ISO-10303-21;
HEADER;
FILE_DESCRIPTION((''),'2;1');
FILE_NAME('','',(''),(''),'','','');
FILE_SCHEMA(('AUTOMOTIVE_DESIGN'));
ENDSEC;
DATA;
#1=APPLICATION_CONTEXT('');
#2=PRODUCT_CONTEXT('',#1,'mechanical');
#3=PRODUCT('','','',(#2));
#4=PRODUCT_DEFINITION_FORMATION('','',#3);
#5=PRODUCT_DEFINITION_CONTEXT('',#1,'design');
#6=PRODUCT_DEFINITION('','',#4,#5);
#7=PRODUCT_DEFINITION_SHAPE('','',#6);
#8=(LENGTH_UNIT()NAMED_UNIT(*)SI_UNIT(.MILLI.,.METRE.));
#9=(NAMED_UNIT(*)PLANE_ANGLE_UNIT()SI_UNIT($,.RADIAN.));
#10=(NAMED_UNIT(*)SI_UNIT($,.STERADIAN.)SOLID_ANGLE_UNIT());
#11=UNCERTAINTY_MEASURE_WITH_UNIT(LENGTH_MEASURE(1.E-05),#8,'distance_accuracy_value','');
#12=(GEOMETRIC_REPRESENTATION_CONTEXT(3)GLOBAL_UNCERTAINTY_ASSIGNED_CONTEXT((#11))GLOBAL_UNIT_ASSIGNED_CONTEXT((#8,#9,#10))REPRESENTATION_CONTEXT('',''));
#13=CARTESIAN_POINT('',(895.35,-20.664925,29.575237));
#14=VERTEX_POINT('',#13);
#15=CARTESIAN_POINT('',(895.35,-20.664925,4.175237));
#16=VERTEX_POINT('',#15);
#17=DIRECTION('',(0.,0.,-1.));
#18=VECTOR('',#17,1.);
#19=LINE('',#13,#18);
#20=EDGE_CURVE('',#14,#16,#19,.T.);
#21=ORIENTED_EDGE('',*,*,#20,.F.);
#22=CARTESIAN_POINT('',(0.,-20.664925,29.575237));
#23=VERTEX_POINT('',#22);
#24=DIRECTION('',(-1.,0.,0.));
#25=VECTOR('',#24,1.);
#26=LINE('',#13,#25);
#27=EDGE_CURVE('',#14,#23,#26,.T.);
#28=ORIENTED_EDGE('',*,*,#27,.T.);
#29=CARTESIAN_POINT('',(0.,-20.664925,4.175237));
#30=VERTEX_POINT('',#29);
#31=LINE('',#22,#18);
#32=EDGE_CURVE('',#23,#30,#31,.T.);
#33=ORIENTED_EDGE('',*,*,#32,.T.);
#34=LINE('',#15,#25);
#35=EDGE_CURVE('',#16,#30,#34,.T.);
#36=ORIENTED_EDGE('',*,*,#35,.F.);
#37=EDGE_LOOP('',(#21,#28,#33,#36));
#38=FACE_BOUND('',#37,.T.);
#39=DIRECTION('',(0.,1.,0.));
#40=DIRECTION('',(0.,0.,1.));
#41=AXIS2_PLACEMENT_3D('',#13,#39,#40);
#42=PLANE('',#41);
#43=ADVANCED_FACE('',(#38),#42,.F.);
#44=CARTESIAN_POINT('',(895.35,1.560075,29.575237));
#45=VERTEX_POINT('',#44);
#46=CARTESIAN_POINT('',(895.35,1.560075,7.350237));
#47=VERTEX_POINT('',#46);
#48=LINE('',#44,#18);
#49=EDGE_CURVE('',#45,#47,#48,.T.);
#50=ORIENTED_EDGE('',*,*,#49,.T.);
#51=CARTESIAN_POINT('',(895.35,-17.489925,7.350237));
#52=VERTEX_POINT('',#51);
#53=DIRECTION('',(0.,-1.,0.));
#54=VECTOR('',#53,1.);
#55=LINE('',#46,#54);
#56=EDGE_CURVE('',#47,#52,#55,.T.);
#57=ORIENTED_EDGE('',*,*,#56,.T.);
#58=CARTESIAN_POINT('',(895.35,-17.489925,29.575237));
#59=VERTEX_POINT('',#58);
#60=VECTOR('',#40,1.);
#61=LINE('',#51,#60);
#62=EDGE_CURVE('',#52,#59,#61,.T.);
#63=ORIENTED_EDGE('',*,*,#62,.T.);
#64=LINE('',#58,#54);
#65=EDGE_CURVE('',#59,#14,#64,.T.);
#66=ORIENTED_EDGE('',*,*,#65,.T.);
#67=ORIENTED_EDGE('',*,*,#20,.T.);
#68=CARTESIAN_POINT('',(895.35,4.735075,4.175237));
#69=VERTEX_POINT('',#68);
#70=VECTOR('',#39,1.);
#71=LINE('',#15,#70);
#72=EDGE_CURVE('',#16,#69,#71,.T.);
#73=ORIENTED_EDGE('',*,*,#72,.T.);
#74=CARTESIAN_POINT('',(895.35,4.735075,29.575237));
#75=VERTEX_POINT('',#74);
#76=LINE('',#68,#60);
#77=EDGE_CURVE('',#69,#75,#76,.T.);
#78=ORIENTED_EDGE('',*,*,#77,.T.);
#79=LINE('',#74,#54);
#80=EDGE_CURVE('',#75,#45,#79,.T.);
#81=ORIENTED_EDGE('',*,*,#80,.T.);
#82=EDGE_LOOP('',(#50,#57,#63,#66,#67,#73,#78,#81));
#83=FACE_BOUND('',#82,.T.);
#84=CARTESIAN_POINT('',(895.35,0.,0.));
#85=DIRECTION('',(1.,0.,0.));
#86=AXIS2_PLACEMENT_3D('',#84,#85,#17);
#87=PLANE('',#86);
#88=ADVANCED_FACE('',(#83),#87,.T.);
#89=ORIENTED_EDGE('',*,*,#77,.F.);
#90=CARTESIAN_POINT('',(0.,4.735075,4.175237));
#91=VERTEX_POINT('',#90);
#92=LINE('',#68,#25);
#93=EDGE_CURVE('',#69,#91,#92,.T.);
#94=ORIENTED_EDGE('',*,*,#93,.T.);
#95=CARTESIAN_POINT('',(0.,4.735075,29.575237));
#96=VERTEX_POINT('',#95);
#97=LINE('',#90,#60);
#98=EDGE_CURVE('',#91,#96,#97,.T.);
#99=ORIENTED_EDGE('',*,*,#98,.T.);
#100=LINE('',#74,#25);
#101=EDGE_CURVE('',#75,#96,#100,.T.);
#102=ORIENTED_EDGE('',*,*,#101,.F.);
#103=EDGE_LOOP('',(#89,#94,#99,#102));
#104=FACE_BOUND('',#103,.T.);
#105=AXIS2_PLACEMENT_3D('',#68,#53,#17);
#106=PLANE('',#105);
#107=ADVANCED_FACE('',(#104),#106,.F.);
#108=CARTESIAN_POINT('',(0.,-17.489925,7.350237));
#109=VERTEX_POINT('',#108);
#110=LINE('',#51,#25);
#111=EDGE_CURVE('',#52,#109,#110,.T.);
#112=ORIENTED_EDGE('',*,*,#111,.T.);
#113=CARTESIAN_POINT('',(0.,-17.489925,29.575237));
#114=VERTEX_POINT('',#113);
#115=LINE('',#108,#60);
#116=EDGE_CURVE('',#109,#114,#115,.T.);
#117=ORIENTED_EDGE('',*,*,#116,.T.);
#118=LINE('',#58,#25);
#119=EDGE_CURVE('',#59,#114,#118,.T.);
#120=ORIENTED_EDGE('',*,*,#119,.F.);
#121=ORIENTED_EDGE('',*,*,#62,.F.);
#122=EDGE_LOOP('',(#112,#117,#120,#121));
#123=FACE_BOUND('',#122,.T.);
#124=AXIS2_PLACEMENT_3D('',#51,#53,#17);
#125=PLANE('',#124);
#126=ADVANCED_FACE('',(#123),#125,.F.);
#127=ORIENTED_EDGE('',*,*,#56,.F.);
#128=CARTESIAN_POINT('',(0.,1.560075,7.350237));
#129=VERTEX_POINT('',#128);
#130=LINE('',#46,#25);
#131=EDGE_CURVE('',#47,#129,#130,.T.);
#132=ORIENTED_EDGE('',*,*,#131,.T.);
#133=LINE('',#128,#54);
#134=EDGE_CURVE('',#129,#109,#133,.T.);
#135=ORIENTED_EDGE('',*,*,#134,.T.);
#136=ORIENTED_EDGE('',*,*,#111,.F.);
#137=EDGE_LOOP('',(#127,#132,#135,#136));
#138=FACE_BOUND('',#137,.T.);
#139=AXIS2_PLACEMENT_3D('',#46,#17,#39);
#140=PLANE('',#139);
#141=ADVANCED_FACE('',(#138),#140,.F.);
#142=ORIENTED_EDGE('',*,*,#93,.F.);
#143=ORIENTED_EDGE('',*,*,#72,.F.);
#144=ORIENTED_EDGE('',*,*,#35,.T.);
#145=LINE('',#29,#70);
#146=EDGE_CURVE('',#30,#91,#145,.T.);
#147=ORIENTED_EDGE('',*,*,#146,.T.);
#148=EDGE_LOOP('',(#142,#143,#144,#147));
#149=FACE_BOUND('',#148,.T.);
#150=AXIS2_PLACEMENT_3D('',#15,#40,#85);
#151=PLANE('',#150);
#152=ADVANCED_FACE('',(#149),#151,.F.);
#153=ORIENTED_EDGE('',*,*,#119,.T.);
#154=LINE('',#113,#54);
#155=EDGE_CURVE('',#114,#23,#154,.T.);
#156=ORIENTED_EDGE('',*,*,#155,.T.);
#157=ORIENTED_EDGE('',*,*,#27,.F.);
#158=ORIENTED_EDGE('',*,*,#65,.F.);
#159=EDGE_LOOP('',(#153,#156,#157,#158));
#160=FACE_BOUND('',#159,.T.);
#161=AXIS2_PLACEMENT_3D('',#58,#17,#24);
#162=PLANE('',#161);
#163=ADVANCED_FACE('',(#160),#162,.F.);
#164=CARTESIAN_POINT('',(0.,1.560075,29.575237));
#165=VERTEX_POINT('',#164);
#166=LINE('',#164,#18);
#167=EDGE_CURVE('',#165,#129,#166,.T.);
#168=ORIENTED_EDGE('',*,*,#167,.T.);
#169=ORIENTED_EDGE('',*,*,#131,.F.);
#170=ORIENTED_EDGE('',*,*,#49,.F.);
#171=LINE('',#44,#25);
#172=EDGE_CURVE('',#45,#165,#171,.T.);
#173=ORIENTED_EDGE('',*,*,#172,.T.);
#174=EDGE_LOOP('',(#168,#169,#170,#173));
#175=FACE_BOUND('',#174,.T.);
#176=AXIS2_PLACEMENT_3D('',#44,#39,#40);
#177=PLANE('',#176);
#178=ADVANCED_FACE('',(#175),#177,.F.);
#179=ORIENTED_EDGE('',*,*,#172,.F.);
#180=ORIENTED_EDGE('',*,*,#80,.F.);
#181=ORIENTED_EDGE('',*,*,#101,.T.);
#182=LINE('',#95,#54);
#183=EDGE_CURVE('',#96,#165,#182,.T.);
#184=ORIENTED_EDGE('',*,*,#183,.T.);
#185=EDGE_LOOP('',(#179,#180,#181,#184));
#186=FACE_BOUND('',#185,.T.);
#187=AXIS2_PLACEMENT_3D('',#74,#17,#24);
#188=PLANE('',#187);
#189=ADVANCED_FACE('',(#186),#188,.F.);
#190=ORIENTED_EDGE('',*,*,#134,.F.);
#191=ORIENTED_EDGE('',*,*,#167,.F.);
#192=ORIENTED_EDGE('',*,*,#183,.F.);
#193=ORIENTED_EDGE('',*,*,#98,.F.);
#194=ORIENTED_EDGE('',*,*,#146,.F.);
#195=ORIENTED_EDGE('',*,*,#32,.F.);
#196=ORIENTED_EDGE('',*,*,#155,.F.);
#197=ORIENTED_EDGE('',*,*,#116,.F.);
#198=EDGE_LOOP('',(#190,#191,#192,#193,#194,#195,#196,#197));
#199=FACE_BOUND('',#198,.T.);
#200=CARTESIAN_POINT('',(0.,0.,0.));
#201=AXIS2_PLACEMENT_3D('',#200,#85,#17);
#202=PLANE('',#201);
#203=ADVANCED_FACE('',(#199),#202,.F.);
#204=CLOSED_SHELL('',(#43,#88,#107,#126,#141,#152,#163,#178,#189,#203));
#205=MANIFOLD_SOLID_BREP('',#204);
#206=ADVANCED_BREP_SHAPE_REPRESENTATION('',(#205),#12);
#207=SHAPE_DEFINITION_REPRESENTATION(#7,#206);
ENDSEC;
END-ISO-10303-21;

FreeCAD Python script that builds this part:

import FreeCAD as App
import Part
import Sketcher

V = App.Vector
Q = App.Units.Quantity


def add_polygon(sketch, points):
    """Adds a closed chain of lines whose ends are joined by coincident constraints."""
    first, n = sketch.GeometryCount, len(points)
    for a, b in zip(points, points[1:] + points[:1]):
        sketch.addGeometry(Part.LineSegment(App.Vector(*a, 0), App.Vector(*b, 0)), False)
    for i in range(n):
        sketch.addConstraint(Sketcher.Constraint("Coincident", first + i, 2, first + (i + 1) % n, 1))

doc = App.newDocument("Part")
body = doc.addObject("PartDesign::Body", "Body")

# Sketch on YZ plane
sketch1 = doc.addObject("Sketcher::SketchObject", "Sketch")
body.addObject(sketch1)
sketch1.AttachmentSupport = (doc.YZ_Plane, [""])
sketch1.MapMode = "FlatFace"
add_polygon(sketch1, [(4.7, 29.6), (1.6, 29.6), (1.6, 7.4), (-17.5, 7.4), (-17.5, 29.6), (-20.7, 29.6), (-20.7, 4.2), (4.7, 4.2)])  # lines 0-7
sketch1.addConstraint([
    Sketcher.Constraint("Horizontal", 0),
    Sketcher.Constraint("Vertical", 1),
    Sketcher.Constraint("Horizontal", 2),
    Sketcher.Constraint("Vertical", 3),
    Sketcher.Constraint("Horizontal", 4),
    Sketcher.Constraint("Vertical", 5),
    Sketcher.Constraint("Horizontal", 6),
    Sketcher.Constraint("Vertical", 7),
    Sketcher.Constraint("Horizontal", 0, 2, 3, 2),
    Sketcher.Constraint("Equal", 0, 4),
    Sketcher.Constraint("Equal", 6, 5),
    Sketcher.Constraint("DistanceX", 6, 1, 6, 2, Q("1 in")),
    Sketcher.Constraint("DistanceX", 2, 2, 2, 1, Q("0.75 in")),
    Sketcher.Constraint("DistanceY", 1, 2, 1, 1, Q("0.875 in")),
    Sketcher.Constraint("DistanceX", -1, 1, 0, 2, Q("1.560075 mm")),
    Sketcher.Constraint("DistanceY", -1, 1, 0, 2, Q("29.575237 mm")),
])
pad1 = doc.addObject("PartDesign::Pad", "Pad")
body.addObject(pad1)
pad1.Profile = sketch1
pad1.Length = Q("35.25 in")

doc.recompute()
